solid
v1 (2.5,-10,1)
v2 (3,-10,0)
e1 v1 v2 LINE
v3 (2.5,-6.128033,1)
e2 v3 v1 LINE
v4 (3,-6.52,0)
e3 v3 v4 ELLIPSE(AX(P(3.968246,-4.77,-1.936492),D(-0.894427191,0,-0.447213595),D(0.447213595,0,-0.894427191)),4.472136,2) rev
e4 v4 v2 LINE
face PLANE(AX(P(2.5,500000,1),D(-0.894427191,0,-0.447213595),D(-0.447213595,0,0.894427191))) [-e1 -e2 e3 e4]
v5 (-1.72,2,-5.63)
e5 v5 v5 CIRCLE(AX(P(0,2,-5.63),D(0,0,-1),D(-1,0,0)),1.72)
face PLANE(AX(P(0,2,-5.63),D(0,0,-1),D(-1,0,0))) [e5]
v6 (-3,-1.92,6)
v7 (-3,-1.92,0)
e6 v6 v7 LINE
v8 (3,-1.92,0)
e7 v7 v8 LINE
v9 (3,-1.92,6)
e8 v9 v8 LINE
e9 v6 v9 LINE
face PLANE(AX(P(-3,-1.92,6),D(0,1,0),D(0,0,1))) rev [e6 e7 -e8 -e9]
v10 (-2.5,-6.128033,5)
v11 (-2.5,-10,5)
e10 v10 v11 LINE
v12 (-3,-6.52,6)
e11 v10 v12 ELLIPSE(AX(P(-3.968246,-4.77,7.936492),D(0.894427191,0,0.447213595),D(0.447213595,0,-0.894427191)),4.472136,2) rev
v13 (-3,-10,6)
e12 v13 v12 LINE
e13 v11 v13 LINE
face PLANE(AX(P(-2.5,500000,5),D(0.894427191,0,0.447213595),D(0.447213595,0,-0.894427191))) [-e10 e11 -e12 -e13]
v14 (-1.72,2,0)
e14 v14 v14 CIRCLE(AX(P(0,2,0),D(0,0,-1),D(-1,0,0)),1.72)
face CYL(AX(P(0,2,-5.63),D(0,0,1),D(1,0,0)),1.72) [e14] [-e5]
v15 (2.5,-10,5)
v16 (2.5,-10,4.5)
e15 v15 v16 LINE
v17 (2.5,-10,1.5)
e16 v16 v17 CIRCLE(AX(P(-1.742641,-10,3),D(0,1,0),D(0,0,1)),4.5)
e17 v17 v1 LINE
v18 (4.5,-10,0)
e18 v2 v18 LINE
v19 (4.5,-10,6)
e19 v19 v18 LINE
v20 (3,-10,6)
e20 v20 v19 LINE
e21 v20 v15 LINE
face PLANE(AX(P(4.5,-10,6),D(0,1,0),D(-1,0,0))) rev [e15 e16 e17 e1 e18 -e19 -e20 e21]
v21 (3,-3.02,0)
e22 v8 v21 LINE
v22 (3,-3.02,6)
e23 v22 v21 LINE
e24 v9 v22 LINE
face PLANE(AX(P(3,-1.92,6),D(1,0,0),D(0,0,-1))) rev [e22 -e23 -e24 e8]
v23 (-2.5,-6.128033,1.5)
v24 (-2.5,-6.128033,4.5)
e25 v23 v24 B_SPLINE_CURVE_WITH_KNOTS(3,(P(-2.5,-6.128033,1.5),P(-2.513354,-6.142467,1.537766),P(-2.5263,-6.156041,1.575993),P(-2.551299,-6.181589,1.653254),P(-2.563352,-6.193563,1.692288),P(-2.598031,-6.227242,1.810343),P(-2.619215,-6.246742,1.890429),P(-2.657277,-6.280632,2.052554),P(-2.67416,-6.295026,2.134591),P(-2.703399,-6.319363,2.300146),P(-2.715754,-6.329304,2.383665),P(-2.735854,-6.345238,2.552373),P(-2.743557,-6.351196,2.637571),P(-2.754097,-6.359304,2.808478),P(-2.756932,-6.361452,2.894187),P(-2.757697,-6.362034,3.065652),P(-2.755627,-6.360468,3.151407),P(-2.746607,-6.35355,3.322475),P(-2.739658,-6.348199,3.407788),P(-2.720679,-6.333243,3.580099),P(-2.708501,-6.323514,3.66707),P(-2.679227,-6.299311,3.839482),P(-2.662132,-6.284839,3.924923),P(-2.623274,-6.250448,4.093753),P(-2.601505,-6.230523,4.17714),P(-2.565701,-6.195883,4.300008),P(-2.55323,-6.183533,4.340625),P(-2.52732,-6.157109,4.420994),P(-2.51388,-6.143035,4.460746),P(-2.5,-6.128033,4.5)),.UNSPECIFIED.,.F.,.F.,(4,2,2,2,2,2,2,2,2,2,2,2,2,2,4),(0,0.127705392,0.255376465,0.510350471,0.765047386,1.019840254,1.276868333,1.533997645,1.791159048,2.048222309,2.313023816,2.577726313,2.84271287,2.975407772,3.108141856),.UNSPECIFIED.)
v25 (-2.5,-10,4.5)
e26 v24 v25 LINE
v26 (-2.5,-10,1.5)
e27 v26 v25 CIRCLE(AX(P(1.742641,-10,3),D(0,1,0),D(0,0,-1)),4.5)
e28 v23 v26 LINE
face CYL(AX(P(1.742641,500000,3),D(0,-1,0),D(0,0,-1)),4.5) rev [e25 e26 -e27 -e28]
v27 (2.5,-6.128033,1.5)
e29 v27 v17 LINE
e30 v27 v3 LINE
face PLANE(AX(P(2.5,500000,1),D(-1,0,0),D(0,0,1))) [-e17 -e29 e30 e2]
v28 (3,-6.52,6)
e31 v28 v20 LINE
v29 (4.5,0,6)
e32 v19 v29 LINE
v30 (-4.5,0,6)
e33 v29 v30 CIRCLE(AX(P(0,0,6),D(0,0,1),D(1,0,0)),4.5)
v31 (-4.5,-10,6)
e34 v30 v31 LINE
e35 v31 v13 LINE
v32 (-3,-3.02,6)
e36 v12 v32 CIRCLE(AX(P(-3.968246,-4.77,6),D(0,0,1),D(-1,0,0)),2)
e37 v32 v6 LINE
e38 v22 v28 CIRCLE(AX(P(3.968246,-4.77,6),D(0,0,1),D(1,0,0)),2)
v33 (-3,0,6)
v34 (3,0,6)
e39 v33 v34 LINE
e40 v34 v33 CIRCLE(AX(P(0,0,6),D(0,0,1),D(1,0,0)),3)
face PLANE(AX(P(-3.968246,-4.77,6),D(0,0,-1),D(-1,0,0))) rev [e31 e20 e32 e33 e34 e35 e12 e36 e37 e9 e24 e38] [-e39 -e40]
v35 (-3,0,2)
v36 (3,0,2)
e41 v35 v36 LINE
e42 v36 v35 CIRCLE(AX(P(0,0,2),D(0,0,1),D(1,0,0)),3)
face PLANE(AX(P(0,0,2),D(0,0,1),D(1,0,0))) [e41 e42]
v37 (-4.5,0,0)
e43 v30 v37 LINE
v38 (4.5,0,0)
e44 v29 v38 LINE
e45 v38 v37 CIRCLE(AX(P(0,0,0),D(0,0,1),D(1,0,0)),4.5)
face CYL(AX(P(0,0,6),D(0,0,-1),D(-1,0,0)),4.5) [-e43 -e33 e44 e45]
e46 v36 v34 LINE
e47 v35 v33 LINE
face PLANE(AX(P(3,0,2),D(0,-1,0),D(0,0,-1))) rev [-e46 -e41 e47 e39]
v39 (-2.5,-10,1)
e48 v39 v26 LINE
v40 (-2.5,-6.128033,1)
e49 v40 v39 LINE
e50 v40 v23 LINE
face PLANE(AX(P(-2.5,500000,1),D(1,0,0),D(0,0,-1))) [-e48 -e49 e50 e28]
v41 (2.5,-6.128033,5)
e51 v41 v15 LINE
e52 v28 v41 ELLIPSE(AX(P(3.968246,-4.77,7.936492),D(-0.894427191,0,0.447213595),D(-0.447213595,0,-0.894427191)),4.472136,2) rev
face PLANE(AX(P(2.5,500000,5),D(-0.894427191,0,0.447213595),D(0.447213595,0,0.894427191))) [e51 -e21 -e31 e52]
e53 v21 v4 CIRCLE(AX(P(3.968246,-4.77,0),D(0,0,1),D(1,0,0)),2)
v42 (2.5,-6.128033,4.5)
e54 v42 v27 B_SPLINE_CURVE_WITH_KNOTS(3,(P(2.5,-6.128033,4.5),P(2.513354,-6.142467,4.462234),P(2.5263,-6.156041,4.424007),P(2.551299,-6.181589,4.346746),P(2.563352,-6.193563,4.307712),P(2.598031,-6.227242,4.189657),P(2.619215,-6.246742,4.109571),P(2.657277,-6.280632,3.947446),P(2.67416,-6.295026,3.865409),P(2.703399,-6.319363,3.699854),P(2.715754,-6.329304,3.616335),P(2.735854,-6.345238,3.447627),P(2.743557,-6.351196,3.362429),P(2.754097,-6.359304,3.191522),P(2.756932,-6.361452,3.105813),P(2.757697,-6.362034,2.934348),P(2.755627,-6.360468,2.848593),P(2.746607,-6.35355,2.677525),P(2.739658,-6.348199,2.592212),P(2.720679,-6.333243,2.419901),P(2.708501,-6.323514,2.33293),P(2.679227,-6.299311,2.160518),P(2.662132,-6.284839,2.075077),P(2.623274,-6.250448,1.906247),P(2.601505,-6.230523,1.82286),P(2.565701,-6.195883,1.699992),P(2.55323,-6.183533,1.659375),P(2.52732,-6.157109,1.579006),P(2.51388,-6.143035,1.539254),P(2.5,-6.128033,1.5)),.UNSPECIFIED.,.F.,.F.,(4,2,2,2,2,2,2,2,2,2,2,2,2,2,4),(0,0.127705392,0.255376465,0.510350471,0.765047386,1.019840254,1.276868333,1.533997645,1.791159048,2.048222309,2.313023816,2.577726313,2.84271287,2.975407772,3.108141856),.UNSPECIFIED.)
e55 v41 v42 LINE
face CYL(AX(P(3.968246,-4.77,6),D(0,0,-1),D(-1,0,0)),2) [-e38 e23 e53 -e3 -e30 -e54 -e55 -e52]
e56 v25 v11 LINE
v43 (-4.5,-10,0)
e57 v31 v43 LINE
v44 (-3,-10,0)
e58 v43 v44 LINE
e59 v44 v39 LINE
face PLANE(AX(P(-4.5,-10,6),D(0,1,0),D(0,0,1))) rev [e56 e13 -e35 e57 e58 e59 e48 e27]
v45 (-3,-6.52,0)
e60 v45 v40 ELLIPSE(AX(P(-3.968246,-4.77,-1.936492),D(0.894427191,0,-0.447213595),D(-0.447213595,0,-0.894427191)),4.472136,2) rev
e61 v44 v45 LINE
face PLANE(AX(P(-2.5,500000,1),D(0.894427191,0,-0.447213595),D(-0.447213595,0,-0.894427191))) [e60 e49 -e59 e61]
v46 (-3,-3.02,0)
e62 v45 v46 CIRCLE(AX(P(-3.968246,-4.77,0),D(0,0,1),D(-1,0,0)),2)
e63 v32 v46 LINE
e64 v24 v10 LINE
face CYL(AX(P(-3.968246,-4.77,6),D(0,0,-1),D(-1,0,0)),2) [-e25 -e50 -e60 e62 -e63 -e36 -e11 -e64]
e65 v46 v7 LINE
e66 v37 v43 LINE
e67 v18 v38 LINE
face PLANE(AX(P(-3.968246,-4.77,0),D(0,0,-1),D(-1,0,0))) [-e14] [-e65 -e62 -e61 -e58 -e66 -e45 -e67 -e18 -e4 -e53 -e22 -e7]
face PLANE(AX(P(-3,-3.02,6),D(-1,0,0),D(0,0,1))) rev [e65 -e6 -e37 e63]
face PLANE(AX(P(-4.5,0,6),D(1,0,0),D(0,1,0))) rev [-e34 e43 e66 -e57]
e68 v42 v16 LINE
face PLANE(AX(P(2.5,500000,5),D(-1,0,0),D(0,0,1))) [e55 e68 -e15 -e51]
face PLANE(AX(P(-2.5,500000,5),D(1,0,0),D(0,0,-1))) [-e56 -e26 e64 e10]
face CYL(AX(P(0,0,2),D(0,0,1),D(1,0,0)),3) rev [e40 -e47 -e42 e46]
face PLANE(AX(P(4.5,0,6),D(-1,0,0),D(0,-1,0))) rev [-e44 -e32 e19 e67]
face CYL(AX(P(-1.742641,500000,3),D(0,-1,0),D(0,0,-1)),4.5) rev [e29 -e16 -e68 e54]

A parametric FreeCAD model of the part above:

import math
import FreeCAD as App
import Part
import Sketcher

V = App.Vector

doc = App.newDocument("Part")
body = doc.addObject("PartDesign::Body", "Body")

# Sketch on XY plane
sketch1 = body.newObject("Sketcher::SketchObject", "Sketch")
sketch1.AttachmentSupport = (doc.getObject("XY_Plane"), [""])
sketch1.MapMode = "FlatFace"
sketch1.addGeometry([
    Part.LineSegment(V(4.5, -10, 0), V(4.5, 0, 0)),  # 0
    Part.ArcOfCircle(Part.Circle(V(0, 0, 0), V(0, 0, 1), 4.5), math.radians(0), math.radians(180)),  # 1
    Part.LineSegment(V(-4.5, 0, 0), V(-4.5, -10, 0)),  # 2
    Part.LineSegment(V(-4.5, -10, 0), V(-3, -10, 0)),  # 3
    Part.LineSegment(V(-3, -10, 0), V(-3, -6.5, 0)),  # 4
    Part.ArcOfCircle(Part.Circle(V(-4, -4.8, 0), V(0, 0, 1), 2), math.radians(-61), math.radians(61)),  # 5
    Part.LineSegment(V(-3, -3, 0), V(-3, -1.9, 0)),  # 6
    Part.LineSegment(V(-3, -1.9, 0), V(3, -1.9, 0)),  # 7
    Part.LineSegment(V(3, -1.9, 0), V(3, -3, 0)),  # 8
    Part.ArcOfCircle(Part.Circle(V(4, -4.8, 0), V(0, 0, 1), 2), math.radians(119), math.radians(241)),  # 9
    Part.LineSegment(V(3, -6.5, 0), V(3, -10, 0)),  # 10
    Part.LineSegment(V(3, -10, 0), V(4.5, -10, 0)),  # 11
], False)
sketch1.addConstraint([
    Sketcher.Constraint("Tangent", 0, 2, 1, 1),
    Sketcher.Constraint("Tangent", 1, 2, 2, 1),
    Sketcher.Constraint("Coincident", 2, 2, 3, 1),
    Sketcher.Constraint("Coincident", 3, 2, 4, 1),
    Sketcher.Constraint("Coincident", 4, 2, 5, 1),
    Sketcher.Constraint("Coincident", 5, 2, 6, 1),
    Sketcher.Constraint("Coincident", 6, 2, 7, 1),
    Sketcher.Constraint("Coincident", 7, 2, 8, 1),
    Sketcher.Constraint("Coincident", 8, 2, 9, 1),
    Sketcher.Constraint("Coincident", 9, 2, 10, 1),
    Sketcher.Constraint("Coincident", 10, 2, 11, 1),
    Sketcher.Constraint("Coincident", 11, 2, 0, 1),
    Sketcher.Constraint("Vertical", 0),
    Sketcher.Constraint("Vertical", 2),
    Sketcher.Constraint("Horizontal", 3),
    Sketcher.Constraint("Vertical", 4),
    Sketcher.Constraint("Vertical", 6),
    Sketcher.Constraint("Horizontal", 7),
    Sketcher.Constraint("Vertical", 8),
    Sketcher.Constraint("Vertical", 10),
    Sketcher.Constraint("Horizontal", 11),
    Sketcher.Constraint("Coincident", 1, 3, -1, 1),
    Sketcher.Constraint("Equal", 5, 9),
    Sketcher.Constraint("Symmetric", 5, 3, 9, 3, -2),
    Sketcher.Constraint("Symmetric", 3, 2, 10, 2, -2),
    Sketcher.Constraint("Horizontal", 5, 2, 8, 2),
    Sketcher.Constraint("Vertical", 4, 2, 5, 2),
    Sketcher.Constraint("Radius", 5, 2.0),
    Sketcher.Constraint("Radius", 1, 4.5),
    Sketcher.Constraint("DistanceX", 7, 1, 7, 2, 6.0),
    Sketcher.Constraint("DistanceY", 0, 1, 0, 2, 10.0),
    Sketcher.Constraint("DistanceY", 6, 1, 6, 2, 1.1),
    Sketcher.Constraint("DistanceY", 4, 1, 4, 2, 3.48),
    Sketcher.Constraint("DistanceY", 4, 2, 5, 2, 3.5),
])
pad1 = body.newObject("PartDesign::Pad", "Pad")
pad1.Profile = sketch1
pad1.Length = 6

# Sketch on XY plane
sketch2 = body.newObject("Sketcher::SketchObject", "Sketch001")
sketch2.AttachmentSupport = (doc.getObject("XY_Plane"), [""])
sketch2.MapMode = "FlatFace"
sketch2.AttachmentOffset = App.Placement(V(0, 0, 6), App.Rotation())
sketch2.addGeometry([
    Part.LineSegment(V(-3, 0, 0), V(3, 0, 0)),
    Part.ArcOfCircle(Part.Circle(V(0, 0, 0), V(0, 0, 1), 3), math.radians(0), math.radians(180)),
], False)
sketch2.addConstraint([
    Sketcher.Constraint("Coincident", 0, 1, 1, 2),
    Sketcher.Constraint("Coincident", 1, 1, 0, 2),
    Sketcher.Constraint("Horizontal", 0),
    Sketcher.Constraint("Coincident", 1, 3, -1, 1),
    Sketcher.Constraint("PointOnObject", 0, 1, -1),
    Sketcher.Constraint("Radius", 1, 3.0),
])
pocket1 = body.newObject("PartDesign::Pocket", "Pocket")
pocket1.Profile = sketch2
pocket1.Length = 4

# Sketch on XY plane
sketch3 = body.newObject("Sketcher::SketchObject", "Sketch002")
sketch3.AttachmentSupport = (doc.getObject("XY_Plane"), [""])
sketch3.MapMode = "FlatFace"
sketch3.addGeometry(Part.Circle(V(0, 2, 0), V(0, 0, 1), 1.7), False)
sketch3.addConstraint([
    Sketcher.Constraint("PointOnObject", 0, 3, -2),
    Sketcher.Constraint("Diameter", 0, 3.44),
    Sketcher.Constraint("DistanceY", -1, 1, 0, 3, 2.0),
])
pad2 = body.newObject("PartDesign::Pad", "Pad001")
pad2.Profile = sketch3
pad2.Length = 5.63
pad2.Reversed = True

# Sketch on XZ plane
sketch4 = body.newObject("Sketcher::SketchObject", "Sketch003")
sketch4.AttachmentSupport = (doc.getObject("XZ_Plane"), [""])
sketch4.MapMode = "FlatFace"
sketch4.AttachmentOffset = App.Placement(V(0, 0, 10), App.Rotation())
sketch4.addGeometry([
    Part.LineSegment(V(-3, 6, 0), V(-3, 0, 0)),  # 0
    Part.LineSegment(V(-3, 0, 0), V(-2.5, 1, 0)),  # 1
    Part.LineSegment(V(-2.5, 1, 0), V(-2.5, 1.5, 0)),  # 2
    Part.ArcOfCircle(Part.Circle(V(1.7, 3, 0), V(0, 0, 1), 4.5), math.radians(161), math.radians(199)),  # 3
    Part.LineSegment(V(-2.5, 4.5, 0), V(-2.5, 5, 0)),  # 4
    Part.LineSegment(V(-2.5, 5, 0), V(-3, 6, 0)),  # 5
], False)
sketch4.addConstraint([
    Sketcher.Constraint("Coincident", 0, 2, 1, 1),
    Sketcher.Constraint("Coincident", 1, 2, 2, 1),
    Sketcher.Constraint("Coincident", 2, 2, 3, 2),
    Sketcher.Constraint("Coincident", 3, 1, 4, 1),
    Sketcher.Constraint("Coincident", 4, 2, 5, 1),
    Sketcher.Constraint("Coincident", 5, 2, 0, 1),
    Sketcher.Constraint("Vertical", 0),
    Sketcher.Constraint("Vertical", 2),
    Sketcher.Constraint("Vertical", 4),
    Sketcher.Constraint("PointOnObject", 0, 2, -1),
    Sketcher.Constraint("Vertical", 2, 2, 3, 1),
    Sketcher.Constraint("Equal", 2, 4),
    Sketcher.Constraint("Equal", 1, 5),
    Sketcher.Constraint("Radius", 3, 4.5),
    Sketcher.Constraint("DistanceY", 0, 2, 0, 1, 6.0),
    Sketcher.Constraint("DistanceY", 2, 1, 2, 2, 0.5),
    Sketcher.Constraint("DistanceX", 0, 2, -1, 1, 3.0),
    Sketcher.Constraint("DistanceY", -1, 1, 1, 2, 1.0),
    Sketcher.Constraint("DistanceX", 1, 2, -1, 1, 2.5),
])
pad3 = body.newObject("PartDesign::Pad", "Pad002")
pad3.Profile = sketch4
pad3.Type = "UpToFirst"
pad3.Reversed = True

# Sketch on XZ plane
sketch5 = body.newObject("Sketcher::SketchObject", "Sketch004")
sketch5.AttachmentSupport = (doc.getObject("XZ_Plane"), [""])
sketch5.MapMode = "FlatFace"
sketch5.AttachmentOffset = App.Placement(V(0, 0, 10), App.Rotation())
sketch5.addGeometry([
    Part.LineSegment(V(2.5, 5, 0), V(2.5, 4.5, 0)),  # 0
    Part.ArcOfCircle(Part.Circle(V(-1.7, 3, 0), V(0, 0, 1), 4.5), math.radians(-19), math.radians(19)),  # 1
    Part.LineSegment(V(2.5, 1.5, 0), V(2.5, 1, 0)),  # 2
    Part.LineSegment(V(2.5, 1, 0), V(3, 0, 0)),  # 3
    Part.LineSegment(V(3, 0, 0), V(3, 6, 0)),  # 4
    Part.LineSegment(V(3, 6, 0), V(2.5, 5, 0)),  # 5
], False)
sketch5.addConstraint([
    Sketcher.Constraint("Coincident", 0, 2, 1, 2),
    Sketcher.Constraint("Coincident", 1, 1, 2, 1),
    Sketcher.Constraint("Coincident", 2, 2, 3, 1),
    Sketcher.Constraint("Coincident", 3, 2, 4, 1),
    Sketcher.Constraint("Coincident", 4, 2, 5, 1),
    Sketcher.Constraint("Coincident", 5, 2, 0, 1),
    Sketcher.Constraint("Vertical", 0),
    Sketcher.Constraint("Vertical", 2),
    Sketcher.Constraint("Vertical", 4),
    Sketcher.Constraint("PointOnObject", 3, 2, -1),
    Sketcher.Constraint("Vertical", 0, 2, 1, 1),
    Sketcher.Constraint("Equal", 0, 2),
    Sketcher.Constraint("Equal", 3, 5),
    Sketcher.Constraint("Radius", 1, 4.5),
    Sketcher.Constraint("DistanceY", 4, 1, 4, 2, 6.0),
    Sketcher.Constraint("DistanceY", 0, 2, 0, 1, 0.5),
    Sketcher.Constraint("DistanceY", -1, 1, 2, 2, 1.0),
    Sketcher.Constraint("DistanceX", -1, 1, 3, 2, 3.0),
    Sketcher.Constraint("DistanceX", -1, 1, 0, 2, 2.5),
])
pad4 = body.newObject("PartDesign::Pad", "Pad003")
pad4.Profile = sketch5
pad4.Type = "UpToFirst"
pad4.Reversed = True

doc.recompute()
